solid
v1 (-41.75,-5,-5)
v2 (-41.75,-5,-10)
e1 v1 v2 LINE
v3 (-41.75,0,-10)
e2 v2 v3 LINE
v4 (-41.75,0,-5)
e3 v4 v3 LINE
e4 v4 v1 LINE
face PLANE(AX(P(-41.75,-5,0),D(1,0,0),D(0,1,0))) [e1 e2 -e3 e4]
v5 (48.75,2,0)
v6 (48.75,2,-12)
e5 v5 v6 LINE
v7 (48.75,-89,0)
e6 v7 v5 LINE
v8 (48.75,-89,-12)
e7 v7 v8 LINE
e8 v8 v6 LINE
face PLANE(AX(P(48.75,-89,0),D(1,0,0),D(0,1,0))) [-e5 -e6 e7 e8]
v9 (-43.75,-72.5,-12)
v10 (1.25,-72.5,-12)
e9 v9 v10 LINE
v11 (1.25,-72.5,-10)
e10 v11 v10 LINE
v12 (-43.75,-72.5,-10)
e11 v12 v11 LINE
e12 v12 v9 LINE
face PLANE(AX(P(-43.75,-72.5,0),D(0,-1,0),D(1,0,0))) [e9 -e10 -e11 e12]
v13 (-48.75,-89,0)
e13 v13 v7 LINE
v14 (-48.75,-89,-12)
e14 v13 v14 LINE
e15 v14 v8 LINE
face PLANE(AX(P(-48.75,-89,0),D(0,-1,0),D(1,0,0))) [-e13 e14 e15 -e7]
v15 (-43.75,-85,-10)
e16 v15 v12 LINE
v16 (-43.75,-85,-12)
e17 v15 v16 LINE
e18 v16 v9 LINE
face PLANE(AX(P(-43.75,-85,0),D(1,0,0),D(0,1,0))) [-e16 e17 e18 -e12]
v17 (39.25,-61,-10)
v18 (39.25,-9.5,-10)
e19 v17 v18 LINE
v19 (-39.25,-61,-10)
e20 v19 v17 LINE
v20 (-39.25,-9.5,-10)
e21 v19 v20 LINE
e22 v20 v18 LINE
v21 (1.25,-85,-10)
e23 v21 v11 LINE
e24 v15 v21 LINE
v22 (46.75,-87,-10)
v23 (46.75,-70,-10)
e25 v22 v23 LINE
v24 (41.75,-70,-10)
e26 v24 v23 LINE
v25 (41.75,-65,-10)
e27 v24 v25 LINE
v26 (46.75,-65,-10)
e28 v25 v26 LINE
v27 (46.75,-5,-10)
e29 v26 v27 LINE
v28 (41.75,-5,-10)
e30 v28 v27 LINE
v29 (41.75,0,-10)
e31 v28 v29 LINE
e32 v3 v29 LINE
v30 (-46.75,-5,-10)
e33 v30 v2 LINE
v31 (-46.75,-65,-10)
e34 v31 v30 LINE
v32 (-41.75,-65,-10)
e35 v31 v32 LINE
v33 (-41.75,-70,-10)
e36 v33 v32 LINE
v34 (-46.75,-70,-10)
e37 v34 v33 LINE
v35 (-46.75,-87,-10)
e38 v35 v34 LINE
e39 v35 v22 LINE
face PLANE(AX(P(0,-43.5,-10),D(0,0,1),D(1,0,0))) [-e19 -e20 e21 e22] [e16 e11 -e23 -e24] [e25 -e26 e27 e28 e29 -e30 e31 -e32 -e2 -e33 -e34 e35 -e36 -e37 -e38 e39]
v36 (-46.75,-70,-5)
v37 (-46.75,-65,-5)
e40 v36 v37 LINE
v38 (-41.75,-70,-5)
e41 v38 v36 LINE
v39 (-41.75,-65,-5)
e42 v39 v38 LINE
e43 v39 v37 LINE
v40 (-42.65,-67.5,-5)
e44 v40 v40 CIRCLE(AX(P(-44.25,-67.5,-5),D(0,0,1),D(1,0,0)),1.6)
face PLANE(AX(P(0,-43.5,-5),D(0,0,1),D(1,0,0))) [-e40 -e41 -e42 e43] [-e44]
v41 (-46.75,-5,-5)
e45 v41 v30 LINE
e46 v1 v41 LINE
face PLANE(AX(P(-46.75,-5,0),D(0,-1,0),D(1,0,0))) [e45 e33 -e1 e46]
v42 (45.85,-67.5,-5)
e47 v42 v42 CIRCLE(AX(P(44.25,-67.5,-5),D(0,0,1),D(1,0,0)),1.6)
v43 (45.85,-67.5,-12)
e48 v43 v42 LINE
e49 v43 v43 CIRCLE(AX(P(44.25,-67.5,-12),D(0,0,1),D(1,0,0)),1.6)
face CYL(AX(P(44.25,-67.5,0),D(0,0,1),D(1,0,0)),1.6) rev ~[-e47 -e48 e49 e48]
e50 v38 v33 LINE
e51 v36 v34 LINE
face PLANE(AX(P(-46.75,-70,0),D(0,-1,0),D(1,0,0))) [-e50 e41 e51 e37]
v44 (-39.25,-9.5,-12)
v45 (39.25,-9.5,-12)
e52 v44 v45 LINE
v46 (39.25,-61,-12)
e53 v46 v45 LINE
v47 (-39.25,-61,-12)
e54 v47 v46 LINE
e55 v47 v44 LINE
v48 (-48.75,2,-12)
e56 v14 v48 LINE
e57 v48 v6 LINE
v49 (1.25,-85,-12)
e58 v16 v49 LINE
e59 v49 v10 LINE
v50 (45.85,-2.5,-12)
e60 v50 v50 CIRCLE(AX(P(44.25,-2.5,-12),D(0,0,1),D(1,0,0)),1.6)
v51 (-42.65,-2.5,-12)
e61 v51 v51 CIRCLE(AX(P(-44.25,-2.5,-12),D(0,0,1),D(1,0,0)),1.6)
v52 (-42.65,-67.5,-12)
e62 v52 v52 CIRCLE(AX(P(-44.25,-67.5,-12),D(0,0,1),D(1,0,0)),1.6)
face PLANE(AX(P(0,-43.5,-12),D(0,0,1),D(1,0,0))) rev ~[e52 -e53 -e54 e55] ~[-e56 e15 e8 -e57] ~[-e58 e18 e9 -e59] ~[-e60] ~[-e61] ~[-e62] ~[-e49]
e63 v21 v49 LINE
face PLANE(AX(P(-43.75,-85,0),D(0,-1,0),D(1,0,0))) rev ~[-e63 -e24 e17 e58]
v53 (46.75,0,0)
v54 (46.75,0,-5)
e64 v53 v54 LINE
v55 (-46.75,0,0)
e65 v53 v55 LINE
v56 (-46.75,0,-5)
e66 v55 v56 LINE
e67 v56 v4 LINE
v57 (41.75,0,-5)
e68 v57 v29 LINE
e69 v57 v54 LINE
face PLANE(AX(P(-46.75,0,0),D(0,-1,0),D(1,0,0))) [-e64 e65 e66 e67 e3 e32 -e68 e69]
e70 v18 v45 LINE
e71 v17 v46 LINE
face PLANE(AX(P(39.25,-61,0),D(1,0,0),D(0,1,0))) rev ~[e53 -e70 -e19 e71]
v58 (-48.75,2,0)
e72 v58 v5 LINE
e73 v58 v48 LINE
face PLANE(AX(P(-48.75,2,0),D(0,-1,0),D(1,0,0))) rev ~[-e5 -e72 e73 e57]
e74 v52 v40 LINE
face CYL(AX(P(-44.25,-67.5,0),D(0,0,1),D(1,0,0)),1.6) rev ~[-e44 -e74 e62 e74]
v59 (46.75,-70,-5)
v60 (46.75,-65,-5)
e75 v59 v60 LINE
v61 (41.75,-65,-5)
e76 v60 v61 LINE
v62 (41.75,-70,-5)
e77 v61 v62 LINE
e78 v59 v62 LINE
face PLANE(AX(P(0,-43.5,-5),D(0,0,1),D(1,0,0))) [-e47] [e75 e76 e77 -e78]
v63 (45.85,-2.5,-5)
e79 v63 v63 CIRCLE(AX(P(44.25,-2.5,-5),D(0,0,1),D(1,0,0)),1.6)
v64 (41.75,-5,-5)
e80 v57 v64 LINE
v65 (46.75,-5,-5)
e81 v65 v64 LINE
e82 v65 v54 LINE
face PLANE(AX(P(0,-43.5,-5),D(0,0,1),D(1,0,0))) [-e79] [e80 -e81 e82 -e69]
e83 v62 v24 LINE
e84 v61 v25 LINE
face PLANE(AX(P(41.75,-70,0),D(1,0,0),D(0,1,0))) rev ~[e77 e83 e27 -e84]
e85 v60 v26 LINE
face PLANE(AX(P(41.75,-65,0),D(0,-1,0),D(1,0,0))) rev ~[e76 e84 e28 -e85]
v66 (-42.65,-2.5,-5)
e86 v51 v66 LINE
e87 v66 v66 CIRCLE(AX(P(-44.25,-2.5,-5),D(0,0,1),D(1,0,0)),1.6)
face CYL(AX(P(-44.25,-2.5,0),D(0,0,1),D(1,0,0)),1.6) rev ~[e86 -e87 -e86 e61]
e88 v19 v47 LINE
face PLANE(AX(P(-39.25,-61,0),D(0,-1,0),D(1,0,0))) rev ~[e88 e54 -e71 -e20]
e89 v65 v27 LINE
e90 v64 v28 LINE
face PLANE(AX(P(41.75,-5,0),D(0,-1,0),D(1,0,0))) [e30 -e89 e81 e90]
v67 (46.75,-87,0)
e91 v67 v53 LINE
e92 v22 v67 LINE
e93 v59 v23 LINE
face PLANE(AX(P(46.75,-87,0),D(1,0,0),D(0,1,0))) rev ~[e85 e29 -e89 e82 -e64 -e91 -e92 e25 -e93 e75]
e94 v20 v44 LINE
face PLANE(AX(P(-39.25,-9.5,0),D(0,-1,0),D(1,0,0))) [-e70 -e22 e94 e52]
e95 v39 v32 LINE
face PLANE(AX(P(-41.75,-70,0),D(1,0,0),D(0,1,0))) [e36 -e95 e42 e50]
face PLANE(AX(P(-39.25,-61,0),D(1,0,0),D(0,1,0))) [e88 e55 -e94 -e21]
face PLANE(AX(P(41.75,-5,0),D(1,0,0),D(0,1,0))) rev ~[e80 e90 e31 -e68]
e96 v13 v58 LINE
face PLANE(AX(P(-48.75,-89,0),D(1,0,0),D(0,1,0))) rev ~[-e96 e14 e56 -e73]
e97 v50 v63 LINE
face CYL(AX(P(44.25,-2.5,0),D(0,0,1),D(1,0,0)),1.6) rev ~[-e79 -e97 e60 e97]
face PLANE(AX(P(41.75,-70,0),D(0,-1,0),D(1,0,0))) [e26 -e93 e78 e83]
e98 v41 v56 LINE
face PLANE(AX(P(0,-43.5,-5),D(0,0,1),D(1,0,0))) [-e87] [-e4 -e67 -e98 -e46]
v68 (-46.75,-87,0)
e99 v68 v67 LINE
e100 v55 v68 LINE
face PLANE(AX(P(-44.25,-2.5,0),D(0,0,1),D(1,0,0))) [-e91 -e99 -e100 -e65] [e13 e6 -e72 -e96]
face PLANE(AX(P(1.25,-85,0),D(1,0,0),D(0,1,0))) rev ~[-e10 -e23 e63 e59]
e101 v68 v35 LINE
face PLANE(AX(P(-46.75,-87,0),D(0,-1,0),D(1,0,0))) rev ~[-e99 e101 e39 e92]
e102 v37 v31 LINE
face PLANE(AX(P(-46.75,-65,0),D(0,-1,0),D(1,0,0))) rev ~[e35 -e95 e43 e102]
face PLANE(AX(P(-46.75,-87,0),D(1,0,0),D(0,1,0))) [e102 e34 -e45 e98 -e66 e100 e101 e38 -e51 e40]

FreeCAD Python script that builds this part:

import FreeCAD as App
import Part
import Sketcher
from FreeCAD import Vector

doc = App.newDocument("Part")
params = doc.addObject("Spreadsheet::Sheet", "Params")
for row, (alias, value) in enumerate([
    ("sketch1_height", "91 mm"),
    ("sketch1_width", "97.5 mm"),
    ("pad1_length", "12 mm"),
    ("sketch2_height", "87 mm"),
    ("sketch2_width", "93.5 mm"),
    ("pocket1_length", "10 mm"),
    ("sketch3_diameter", "3.2 mm"),
    ("sketch3_width", "5 mm"),
    ("pad2_length", "10 mm"),
    ("sketch4_height", "87 mm"),
    ("sketch4_width", "93.5 mm"),
    ("pocket2_length", "5 mm"),
    ("sketch5_width", "78.5 mm"),
    ("sketch5_height", "51.5 mm"),
    ("sketch6_width", "45 mm"),
    ("sketch6_height", "12.5 mm"),
    ("sketch7_diameter", "3.2 mm"),
], start=1):
    params.set(f"A{row}", alias)
    params.set(f"B{row}", "=" + value)
    params.setAlias(f"B{row}", alias)

body = doc.addObject("PartDesign::Body", "Body")

# Sketch on XY plane
sketch1 = doc.addObject("Sketcher::SketchObject", "Sketch")
body.addObject(sketch1)
sketch1.AttachmentSupport = (doc.XY_Plane, [""])
sketch1.MapMode = "FlatFace"
sketch1.addGeometry(Part.LineSegment(Vector(-49, 2, 0), Vector(-49, -89, 0)), False)
sketch1.addGeometry(Part.LineSegment(Vector(-49, -89, 0), Vector(49, -89, 0)), False)
sketch1.addGeometry(Part.LineSegment(Vector(49, -89, 0), Vector(49, 2, 0)), False)
sketch1.addGeometry(Part.LineSegment(Vector(49, 2, 0), Vector(-49, 2, 0)), False)
sketch1.addConstraint(Sketcher.Constraint("Coincident", 0, 2, 1, 1))
sketch1.addConstraint(Sketcher.Constraint("Coincident", 1, 2, 2, 1))
sketch1.addConstraint(Sketcher.Constraint("Coincident", 2, 2, 3, 1))
sketch1.addConstraint(Sketcher.Constraint("Coincident", 3, 2, 0, 1))
sketch1.addConstraint(Sketcher.Constraint("Vertical", 0))
sketch1.addConstraint(Sketcher.Constraint("Horizontal", 1))
sketch1.addConstraint(Sketcher.Constraint("Vertical", 2))
sketch1.addConstraint(Sketcher.Constraint("Horizontal", 3))
sketch1.addConstraint(Sketcher.Constraint("DistanceY", 0, 2, 0, 1, 91.0))
sketch1.addConstraint(Sketcher.Constraint("DistanceX", 1, 1, 1, 2, 97.5))
sketch1.addConstraint(Sketcher.Constraint("DistanceY", 0, 2, -1, 1, 89.0))
sketch1.addConstraint(Sketcher.Constraint("DistanceX", 0, 2, -1, 1, 48.75))
sketch1.setExpression("Constraints[8]", "Params.sketch1_height")
sketch1.setExpression("Constraints[9]", "Params.sketch1_width")
pad1 = doc.addObject("PartDesign::Pad", "Pad")
body.addObject(pad1)
pad1.Profile = sketch1
pad1.setExpression("Length", "Params.pad1_length")
pad1.Reversed = True

# Sketch on XY plane
sketch2 = doc.addObject("Sketcher::SketchObject", "Sketch001")
body.addObject(sketch2)
sketch2.AttachmentSupport = (doc.XY_Plane, [""])
sketch2.MapMode = "FlatFace"
sketch2.addGeometry(Part.LineSegment(Vector(-47, 0, 0), Vector(-47, -87, 0)), False)
sketch2.addGeometry(Part.LineSegment(Vector(-47, -87, 0), Vector(47, -87, 0)), False)
sketch2.addGeometry(Part.LineSegment(Vector(47, -87, 0), Vector(47, 0, 0)), False)
sketch2.addGeometry(Part.LineSegment(Vector(47, 0, 0), Vector(-47, 0, 0)), False)
sketch2.addConstraint(Sketcher.Constraint("Coincident", 0, 2, 1, 1))
sketch2.addConstraint(Sketcher.Constraint("Coincident", 1, 2, 2, 1))
sketch2.addConstraint(Sketcher.Constraint("Coincident", 2, 2, 3, 1))
sketch2.addConstraint(Sketcher.Constraint("Coincident", 3, 2, 0, 1))
sketch2.addConstraint(Sketcher.Constraint("Vertical", 0))
sketch2.addConstraint(Sketcher.Constraint("Horizontal", 1))
sketch2.addConstraint(Sketcher.Constraint("Vertical", 2))
sketch2.addConstraint(Sketcher.Constraint("Horizontal", 3))
sketch2.addConstraint(Sketcher.Constraint("Symmetric", 2, 2, 3, 2, -1, 1))
sketch2.addConstraint(Sketcher.Constraint("DistanceY", 0, 2, 0, 1, 87.0))
sketch2.addConstraint(Sketcher.Constraint("DistanceX", 1, 1, 1, 2, 93.5))
sketch2.setExpression("Constraints[9]", "Params.sketch2_height")
sketch2.setExpression("Constraints[10]", "Params.sketch2_width")
pocket1 = doc.addObject("PartDesign::Pocket", "Pocket")
body.addObject(pocket1)
pocket1.Profile = sketch2
pocket1.setExpression("Length", "Params.pocket1_length")

# Sketch on XY plane
sketch3 = doc.addObject("Sketcher::SketchObject", "Sketch002")
body.addObject(sketch3)
sketch3.AttachmentSupport = (doc.XY_Plane, [""])
sketch3.MapMode = "FlatFace"
sketch3.addGeometry(Part.LineSegment(Vector(-46.8, 0, 0), Vector(-46.8, -5, 0)), False)
sketch3.addGeometry(Part.LineSegment(Vector(-46.8, -5, 0), Vector(-41.8, -5, 0)), False)
sketch3.addGeometry(Part.LineSegment(Vector(-41.8, -5, 0), Vector(-41.8, 0, 0)), False)
sketch3.addGeometry(Part.LineSegment(Vector(-41.8, 0, 0), Vector(-46.8, 0, 0)), False)
sketch3.addGeometry(Part.Circle(Vector(-44.2, -2.5, 0), Vector(0, 0, 1), 1.6), False)
sketch3.addGeometry(Part.LineSegment(Vector(-46.8, -65, 0), Vector(-46.8, -70, 0)), False)
sketch3.addGeometry(Part.LineSegment(Vector(-46.8, -70, 0), Vector(-41.8, -70, 0)), False)
sketch3.addGeometry(Part.LineSegment(Vector(-41.8, -70, 0), Vector(-41.8, -65, 0)), False)
sketch3.addGeometry(Part.LineSegment(Vector(-41.8, -65, 0), Vector(-46.8, -65, 0)), False)
sketch3.addGeometry(Part.Circle(Vector(-44.2, -67.5, 0), Vector(0, 0, 1), 1.6), False)
sketch3.addGeometry(Part.LineSegment(Vector(41.8, -65, 0), Vector(41.8, -70, 0)), False)
sketch3.addGeometry(Part.LineSegment(Vector(41.8, -70, 0), Vector(46.8, -70, 0)), False)
sketch3.addGeometry(Part.LineSegment(Vector(46.8, -70, 0), Vector(46.8, -65, 0)), False)
sketch3.addGeometry(Part.LineSegment(Vector(46.8, -65, 0), Vector(41.8, -65, 0)), False)
sketch3.addGeometry(Part.Circle(Vector(44.2, -67.5, 0), Vector(0, 0, 1), 1.6), False)
sketch3.addGeometry(Part.LineSegment(Vector(41.8, 0, 0), Vector(41.8, -5, 0)), False)
sketch3.addGeometry(Part.LineSegment(Vector(41.8, -5, 0), Vector(46.8, -5, 0)), False)
sketch3.addGeometry(Part.LineSegment(Vector(46.8, -5, 0), Vector(46.8, 0, 0)), False)
sketch3.addGeometry(Part.LineSegment(Vector(46.8, 0, 0), Vector(41.8, 0, 0)), False)
sketch3.addGeometry(Part.Circle(Vector(44.2, -2.5, 0), Vector(0, 0, 1), 1.6), False)
sketch3.addConstraint(Sketcher.Constraint("Coincident", 0, 2, 1, 1))
sketch3.addConstraint(Sketcher.Constraint("Coincident", 1, 2, 2, 1))
sketch3.addConstraint(Sketcher.Constraint("Coincident", 2, 2, 3, 1))
sketch3.addConstraint(Sketcher.Constraint("Coincident", 3, 2, 0, 1))
sketch3.addConstraint(Sketcher.Constraint("Coincident", 5, 2, 6, 1))
sketch3.addConstraint(Sketcher.Constraint("Coincident", 6, 2, 7, 1))
sketch3.addConstraint(Sketcher.Constraint("Coincident", 7, 2, 8, 1))
sketch3.addConstraint(Sketcher.Constraint("Coincident", 8, 2, 5, 1))
sketch3.addConstraint(Sketcher.Constraint("Coincident", 10, 2, 11, 1))
sketch3.addConstraint(Sketcher.Constraint("Coincident", 11, 2, 12, 1))
sketch3.addConstraint(Sketcher.Constraint("Coincident", 12, 2, 13, 1))
sketch3.addConstraint(Sketcher.Constraint("Coincident", 13, 2, 10, 1))
sketch3.addConstraint(Sketcher.Constraint("Coincident", 15, 2, 16, 1))
sketch3.addConstraint(Sketcher.Constraint("Coincident", 16, 2, 17, 1))
sketch3.addConstraint(Sketcher.Constraint("Coincident", 17, 2, 18, 1))
sketch3.addConstraint(Sketcher.Constraint("Coincident", 18, 2, 15, 1))
sketch3.addConstraint(Sketcher.Constraint("Vertical", 0))
sketch3.addConstraint(Sketcher.Constraint("Horizontal", 1))
sketch3.addConstraint(Sketcher.Constraint("Vertical", 2))
sketch3.addConstraint(Sketcher.Constraint("Horizontal", 3))
sketch3.addConstraint(Sketcher.Constraint("Vertical", 5))
sketch3.addConstraint(Sketcher.Constraint("Horizontal", 6))
sketch3.addConstraint(Sketcher.Constraint("Vertical", 7))
sketch3.addConstraint(Sketcher.Constraint("Horizontal", 8))
sketch3.addConstraint(Sketcher.Constraint("Vertical", 10))
sketch3.addConstraint(Sketcher.Constraint("Horizontal", 11))
sketch3.addConstraint(Sketcher.Constraint("Vertical", 12))
sketch3.addConstraint(Sketcher.Constraint("Horizontal", 13))
sketch3.addConstraint(Sketcher.Constraint("Vertical", 15))
sketch3.addConstraint(Sketcher.Constraint("Horizontal", 16))
sketch3.addConstraint(Sketcher.Constraint("Vertical", 17))
sketch3.addConstraint(Sketcher.Constraint("Horizontal", 18))
sketch3.addConstraint(Sketcher.Constraint("Equal", 4, 9))
sketch3.addConstraint(Sketcher.Constraint("Equal", 9, 14))
sketch3.addConstraint(Sketcher.Constraint("Equal", 14, 19))
sketch3.addConstraint(Sketcher.Constraint("Symmetric", 3, 2, 17, 2, -1, 1))
sketch3.addConstraint(Sketcher.Constraint("Symmetric", 9, 3, 14, 3, -2))
sketch3.addConstraint(Sketcher.Constraint("Symmetric", 4, 3, 19, 3, -2))
sketch3.addConstraint(Sketcher.Constraint("Symmetric", 6, 2, 10, 2, -2))
sketch3.addConstraint(Sketcher.Constraint("Symmetric", 8, 2, 12, 2, -2))
sketch3.addConstraint(Sketcher.Constraint("Symmetric", 1, 2, 15, 2, -2))
sketch3.addConstraint(Sketcher.Constraint("PointOnObject", 2, 2, -1))
sketch3.addConstraint(Sketcher.Constraint("Vertical", 4, 3, 9, 3))
sketch3.addConstraint(Sketcher.Constraint("Vertical", 3, 2, 5, 2))
sketch3.addConstraint(Sketcher.Constraint("Vertical", 2, 2, 6, 2))
sketch3.addConstraint(Sketcher.Constraint("Equal", 18, 0))
sketch3.addConstraint(Sketcher.Constraint("Equal", 2, 5))
sketch3.addConstraint(Sketcher.Constraint("Diameter", 4, 3.2))
sketch3.addConstraint(Sketcher.Constraint("DistanceX", 1, 1, 1, 2, 5.0))
sketch3.addConstraint(Sketcher.Constraint("DistanceY", 5, 2, -1, 1, 70.0))
sketch3.addConstraint(Sketcher.Constraint("DistanceY", 9, 3, 4, 3, 65.0))
sketch3.addConstraint(Sketcher.Constraint("DistanceX", 0, 2, 19, 3, 91.0))
sketch3.addConstraint(Sketcher.Constraint("DistanceY", 4, 3, -1, 1, 2.5))
sketch3.addConstraint(Sketcher.Constraint("DistanceX", 9, 3, 14, 3, 88.5))
sketch3.setExpression("Constraints[47]", "Params.sketch3_diameter")
sketch3.setExpression("Constraints[48]", "Params.sketch3_width")
pad2 = doc.addObject("PartDesign::Pad", "Pad001")
body.addObject(pad2)
pad2.Profile = sketch3
pad2.setExpression("Length", "Params.pad2_length")
pad2.Reversed = True

# Sketch on XY plane
sketch4 = doc.addObject("Sketcher::SketchObject", "Sketch003")
body.addObject(sketch4)
sketch4.AttachmentSupport = (doc.XY_Plane, [""])
sketch4.MapMode = "FlatFace"
sketch4.addGeometry(Part.LineSegment(Vector(-47, 0, 0), Vector(-47, -87, 0)), False)
sketch4.addGeometry(Part.LineSegment(Vector(-47, -87, 0), Vector(47, -87, 0)), False)
sketch4.addGeometry(Part.LineSegment(Vector(47, -87, 0), Vector(47, 0, 0)), False)
sketch4.addGeometry(Part.LineSegment(Vector(47, 0, 0), Vector(-47, 0, 0)), False)
sketch4.addConstraint(Sketcher.Constraint("Coincident", 0, 2, 1, 1))
sketch4.addConstraint(Sketcher.Constraint("Coincident", 1, 2, 2, 1))
sketch4.addConstraint(Sketcher.Constraint("Coincident", 2, 2, 3, 1))
sketch4.addConstraint(Sketcher.Constraint("Coincident", 3, 2, 0, 1))
sketch4.addConstraint(Sketcher.Constraint("Vertical", 0))
sketch4.addConstraint(Sketcher.Constraint("Horizontal", 1))
sketch4.addConstraint(Sketcher.Constraint("Vertical", 2))
sketch4.addConstraint(Sketcher.Constraint("Horizontal", 3))
sketch4.addConstraint(Sketcher.Constraint("Symmetric", 2, 2, 3, 2, -1, 1))
sketch4.addConstraint(Sketcher.Constraint("DistanceY", 0, 2, 0, 1, 87.0))
sketch4.addConstraint(Sketcher.Constraint("DistanceX", 1, 1, 1, 2, 93.5))
sketch4.setExpression("Constraints[9]", "Params.sketch4_height")
sketch4.setExpression("Constraints[10]", "Params.sketch4_width")
pocket2 = doc.addObject("PartDesign::Pocket", "Pocket001")
body.addObject(pocket2)
pocket2.Profile = sketch4
pocket2.setExpression("Length", "Params.pocket2_length")

# Sketch on XY plane
sketch5 = doc.addObject("Sketcher::SketchObject", "Sketch004")
body.addObject(sketch5)
sketch5.AttachmentSupport = (doc.XY_Plane, [""])
sketch5.MapMode = "FlatFace"
sketch5.addGeometry(Part.LineSegment(Vector(-39, -10, 0), Vector(-39, -61, 0)), False)
sketch5.addGeometry(Part.LineSegment(Vector(-39, -61, 0), Vector(39, -61, 0)), False)
sketch5.addGeometry(Part.LineSegment(Vector(39, -61, 0), Vector(39, -10, 0)), False)
sketch5.addGeometry(Part.LineSegment(Vector(39, -10, 0), Vector(-39, -10, 0)), False)
sketch5.addConstraint(Sketcher.Constraint("Coincident", 0, 2, 1, 1))
sketch5.addConstraint(Sketcher.Constraint("Coincident", 1, 2, 2, 1))
sketch5.addConstraint(Sketcher.Constraint("Coincident", 2, 2, 3, 1))
sketch5.addConstraint(Sketcher.Constraint("Coincident", 3, 2, 0, 1))
sketch5.addConstraint(Sketcher.Constraint("Vertical", 0))
sketch5.addConstraint(Sketcher.Constraint("Horizontal", 1))
sketch5.addConstraint(Sketcher.Constraint("Vertical", 2))
sketch5.addConstraint(Sketcher.Constraint("Horizontal", 3))
sketch5.addConstraint(Sketcher.Constraint("DistanceX", 1, 1, 1, 2, 78.5))
sketch5.addConstraint(Sketcher.Constraint("DistanceY", 0, 2, 0, 1, 51.5))
sketch5.addConstraint(Sketcher.Constraint("DistanceY", 0, 2, -1, 1, 61.0))
sketch5.addConstraint(Sketcher.Constraint("DistanceX", 0, 2, -1, 1, 39.25))
sketch5.setExpression("Constraints[8]", "Params.sketch5_width")
sketch5.setExpression("Constraints[9]", "Params.sketch5_height")
pocket3 = doc.addObject("PartDesign::Pocket", "Pocket002")
body.addObject(pocket3)
pocket3.Profile = sketch5
pocket3.Type = "ThroughAll"

# Sketch on XY plane
sketch6 = doc.addObject("Sketcher::SketchObject", "Sketch005")
body.addObject(sketch6)
sketch6.AttachmentSupport = (doc.XY_Plane, [""])
sketch6.MapMode = "FlatFace"
sketch6.addGeometry(Part.LineSegment(Vector(-44, -72, 0), Vector(-44, -85, 0)), False)
sketch6.addGeometry(Part.LineSegment(Vector(-44, -85, 0), Vector(1, -85, 0)), False)
sketch6.addGeometry(Part.LineSegment(Vector(1, -85, 0), Vector(1, -72, 0)), False)
sketch6.addGeometry(Part.LineSegment(Vector(1, -72, 0), Vector(-44, -72, 0)), False)
sketch6.addConstraint(Sketcher.Constraint("Coincident", 0, 2, 1, 1))
sketch6.addConstraint(Sketcher.Constraint("Coincident", 1, 2, 2, 1))
sketch6.addConstraint(Sketcher.Constraint("Coincident", 2, 2, 3, 1))
sketch6.addConstraint(Sketcher.Constraint("Coincident", 3, 2, 0, 1))
sketch6.addConstraint(Sketcher.Constraint("Vertical", 0))
sketch6.addConstraint(Sketcher.Constraint("Horizontal", 1))
sketch6.addConstraint(Sketcher.Constraint("Vertical", 2))
sketch6.addConstraint(Sketcher.Constraint("Horizontal", 3))
sketch6.addConstraint(Sketcher.Constraint("DistanceX", 1, 1, 1, 2, 45.0))
sketch6.addConstraint(Sketcher.Constraint("DistanceY", 0, 2, 0, 1, 12.5))
sketch6.addConstraint(Sketcher.Constraint("DistanceY", 0, 2, -1, 1, 85.0))
sketch6.addConstraint(Sketcher.Constraint("DistanceX", 0, 2, -1, 1, 43.75))
sketch6.setExpression("Constraints[8]", "Params.sketch6_width")
sketch6.setExpression("Constraints[9]", "Params.sketch6_height")
pocket4 = doc.addObject("PartDesign::Pocket", "Pocket003")
body.addObject(pocket4)
pocket4.Profile = sketch6
pocket4.Type = "ThroughAll"

# Sketch on XY plane
sketch7 = doc.addObject("Sketcher::SketchObject", "Sketch006")
body.addObject(sketch7)
sketch7.AttachmentSupport = (doc.XY_Plane, [""])
sketch7.MapMode = "FlatFace"
sketch7.addGeometry(Part.Circle(Vector(-44.2, -2.5, 0), Vector(0, 0, 1), 1.6), False)
sketch7.addGeometry(Part.Circle(Vector(44.2, -2.5, 0), Vector(0, 0, 1), 1.6), False)
sketch7.addGeometry(Part.Circle(Vector(44.2, -67.5, 0), Vector(0, 0, 1), 1.6), False)
sketch7.addGeometry(Part.Circle(Vector(-44.2, -67.5, 0), Vector(0, 0, 1), 1.6), False)
sketch7.addConstraint(Sketcher.Constraint("Equal", 0, 1))
sketch7.addConstraint(Sketcher.Constraint("Equal", 1, 2))
sketch7.addConstraint(Sketcher.Constraint("Equal", 2, 3))
sketch7.addConstraint(Sketcher.Constraint("Symmetric", 0, 3, 1, 3, -2))
sketch7.addConstraint(Sketcher.Constraint("Symmetric", 2, 3, 3, 3, -2))
sketch7.addConstraint(Sketcher.Constraint("Vertical", 1, 3, 2, 3))
sketch7.addConstraint(Sketcher.Constraint("Diameter", 0, 3.2))
sketch7.addConstraint(Sketcher.Constraint("DistanceY", 2, 3, 1, 3, 65.0))
sketch7.addConstraint(Sketcher.Constraint("DistanceY", 0, 3, -1, 1, 2.5))
sketch7.addConstraint(Sketcher.Constraint("DistanceX", 0, 3, 1, 3, 88.5))
sketch7.setExpression("Constraints[6]", "Params.sketch7_diameter")
pocket5 = doc.addObject("PartDesign::Pocket", "Pocket004")
body.addObject(pocket5)
pocket5.Profile = sketch7
pocket5.Type = "ThroughAll"

doc.recompute()
